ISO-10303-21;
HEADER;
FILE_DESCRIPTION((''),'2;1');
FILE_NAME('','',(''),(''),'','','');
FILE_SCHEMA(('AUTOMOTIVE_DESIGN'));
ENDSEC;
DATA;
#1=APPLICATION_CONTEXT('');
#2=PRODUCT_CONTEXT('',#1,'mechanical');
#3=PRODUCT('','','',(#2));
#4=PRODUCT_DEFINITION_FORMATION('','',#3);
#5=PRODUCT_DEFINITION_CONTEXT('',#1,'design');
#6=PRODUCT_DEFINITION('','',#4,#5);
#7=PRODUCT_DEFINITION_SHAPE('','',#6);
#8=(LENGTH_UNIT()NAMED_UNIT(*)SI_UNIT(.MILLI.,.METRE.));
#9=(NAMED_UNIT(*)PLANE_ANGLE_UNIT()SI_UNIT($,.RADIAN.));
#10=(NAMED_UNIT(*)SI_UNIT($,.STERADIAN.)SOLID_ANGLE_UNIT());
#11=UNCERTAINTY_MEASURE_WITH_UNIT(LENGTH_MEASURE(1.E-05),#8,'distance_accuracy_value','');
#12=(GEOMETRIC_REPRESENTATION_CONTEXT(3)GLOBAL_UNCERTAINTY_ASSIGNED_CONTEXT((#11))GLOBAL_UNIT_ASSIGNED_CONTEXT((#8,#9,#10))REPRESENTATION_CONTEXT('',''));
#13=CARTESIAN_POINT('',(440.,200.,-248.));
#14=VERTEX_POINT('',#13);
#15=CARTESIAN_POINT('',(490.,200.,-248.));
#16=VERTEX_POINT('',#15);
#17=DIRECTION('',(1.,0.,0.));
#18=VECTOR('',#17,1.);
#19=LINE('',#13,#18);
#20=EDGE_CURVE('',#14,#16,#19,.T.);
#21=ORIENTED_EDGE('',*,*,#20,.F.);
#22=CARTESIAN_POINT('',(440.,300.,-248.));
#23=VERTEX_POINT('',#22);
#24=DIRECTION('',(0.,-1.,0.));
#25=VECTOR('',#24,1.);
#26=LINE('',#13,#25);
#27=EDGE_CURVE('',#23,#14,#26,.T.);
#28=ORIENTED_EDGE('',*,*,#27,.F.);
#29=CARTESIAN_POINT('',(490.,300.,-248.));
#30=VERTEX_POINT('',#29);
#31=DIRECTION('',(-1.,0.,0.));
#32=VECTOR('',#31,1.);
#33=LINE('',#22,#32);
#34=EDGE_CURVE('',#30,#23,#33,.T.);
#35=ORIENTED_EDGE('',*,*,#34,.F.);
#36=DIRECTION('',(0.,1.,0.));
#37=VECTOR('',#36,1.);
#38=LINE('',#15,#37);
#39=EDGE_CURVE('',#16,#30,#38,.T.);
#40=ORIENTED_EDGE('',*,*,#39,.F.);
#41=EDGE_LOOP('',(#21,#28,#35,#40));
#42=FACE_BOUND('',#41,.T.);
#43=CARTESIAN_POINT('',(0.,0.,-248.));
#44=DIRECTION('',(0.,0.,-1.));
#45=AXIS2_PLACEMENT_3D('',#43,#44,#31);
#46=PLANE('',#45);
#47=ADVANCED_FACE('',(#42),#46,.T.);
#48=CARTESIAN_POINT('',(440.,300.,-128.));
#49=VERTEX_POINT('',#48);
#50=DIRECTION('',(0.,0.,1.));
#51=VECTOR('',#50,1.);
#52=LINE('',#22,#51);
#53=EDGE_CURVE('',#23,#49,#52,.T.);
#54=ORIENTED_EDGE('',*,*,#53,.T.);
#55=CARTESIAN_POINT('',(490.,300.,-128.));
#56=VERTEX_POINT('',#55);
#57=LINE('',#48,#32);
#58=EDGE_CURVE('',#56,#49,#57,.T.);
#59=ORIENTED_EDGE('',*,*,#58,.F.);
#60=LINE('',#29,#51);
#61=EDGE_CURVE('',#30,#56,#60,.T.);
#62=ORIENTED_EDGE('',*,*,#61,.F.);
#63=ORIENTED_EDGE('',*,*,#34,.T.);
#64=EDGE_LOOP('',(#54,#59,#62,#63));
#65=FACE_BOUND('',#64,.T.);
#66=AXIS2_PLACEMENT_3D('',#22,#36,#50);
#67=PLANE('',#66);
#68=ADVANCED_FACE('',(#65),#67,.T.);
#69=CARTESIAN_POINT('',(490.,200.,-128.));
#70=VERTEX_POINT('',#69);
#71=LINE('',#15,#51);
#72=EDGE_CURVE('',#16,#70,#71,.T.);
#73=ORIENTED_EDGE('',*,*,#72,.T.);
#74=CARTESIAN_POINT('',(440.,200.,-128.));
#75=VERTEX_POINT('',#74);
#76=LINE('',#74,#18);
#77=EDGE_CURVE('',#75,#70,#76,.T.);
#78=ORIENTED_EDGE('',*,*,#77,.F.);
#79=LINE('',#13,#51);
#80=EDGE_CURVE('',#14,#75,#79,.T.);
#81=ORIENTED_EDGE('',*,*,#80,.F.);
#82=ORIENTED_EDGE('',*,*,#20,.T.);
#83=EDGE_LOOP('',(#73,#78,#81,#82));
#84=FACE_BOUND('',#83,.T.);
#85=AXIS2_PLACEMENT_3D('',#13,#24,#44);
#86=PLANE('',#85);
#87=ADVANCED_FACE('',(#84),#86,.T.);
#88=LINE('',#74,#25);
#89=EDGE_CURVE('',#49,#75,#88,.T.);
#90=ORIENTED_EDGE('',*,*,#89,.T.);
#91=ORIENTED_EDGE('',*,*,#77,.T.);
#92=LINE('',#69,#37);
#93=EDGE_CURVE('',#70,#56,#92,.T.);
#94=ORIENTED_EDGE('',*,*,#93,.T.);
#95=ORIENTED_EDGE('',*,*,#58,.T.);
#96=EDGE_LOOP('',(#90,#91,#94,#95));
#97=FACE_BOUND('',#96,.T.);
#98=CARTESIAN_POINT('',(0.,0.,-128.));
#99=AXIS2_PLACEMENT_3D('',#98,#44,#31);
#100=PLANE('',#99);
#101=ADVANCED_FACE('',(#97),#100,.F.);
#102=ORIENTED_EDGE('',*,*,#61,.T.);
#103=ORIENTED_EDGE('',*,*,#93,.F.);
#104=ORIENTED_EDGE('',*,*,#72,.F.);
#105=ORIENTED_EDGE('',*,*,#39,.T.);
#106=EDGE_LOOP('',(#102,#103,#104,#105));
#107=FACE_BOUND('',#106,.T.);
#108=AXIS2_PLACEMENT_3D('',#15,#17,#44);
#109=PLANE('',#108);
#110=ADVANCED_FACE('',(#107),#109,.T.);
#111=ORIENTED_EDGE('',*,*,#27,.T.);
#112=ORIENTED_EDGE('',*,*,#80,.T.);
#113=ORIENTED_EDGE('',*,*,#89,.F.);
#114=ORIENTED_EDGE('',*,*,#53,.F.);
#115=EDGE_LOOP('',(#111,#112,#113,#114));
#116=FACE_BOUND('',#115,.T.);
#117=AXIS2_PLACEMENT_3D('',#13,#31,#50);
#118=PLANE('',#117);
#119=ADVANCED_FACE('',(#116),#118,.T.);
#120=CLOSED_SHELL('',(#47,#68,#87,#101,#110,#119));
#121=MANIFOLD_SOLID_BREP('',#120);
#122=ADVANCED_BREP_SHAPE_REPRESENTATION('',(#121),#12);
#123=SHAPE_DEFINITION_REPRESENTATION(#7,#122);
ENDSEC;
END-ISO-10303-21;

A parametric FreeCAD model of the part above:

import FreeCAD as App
import Part
import Sketcher
from FreeCAD import Vector
Q = App.Units.Quantity

doc = App.newDocument("Part")
body = doc.addObject("PartDesign::Body", "Body")

sketch1 = doc.addObject("Sketcher::SketchObject", "Sketch")
body.addObject(sketch1)
sketch1.AttachmentSupport = (doc.XY_Plane, [""])
sketch1.MapMode = "FlatFace"
sketch1.AttachmentOffset = App.Placement(Vector(0, 0, -128), App.Rotation())
sketch1.addGeometry(Part.LineSegment(Vector(440, 300, 0), Vector(440, 200, 0)), False)
sketch1.addGeometry(Part.LineSegment(Vector(440, 200, 0), Vector(490, 200, 0)), False)
sketch1.addGeometry(Part.LineSegment(Vector(490, 200, 0), Vector(490, 300, 0)), False)
sketch1.addGeometry(Part.LineSegment(Vector(490, 300, 0), Vector(440, 300, 0)), False)
sketch1.addConstraint(Sketcher.Constraint("Coincident", 0, 2, 1, 1))
sketch1.addConstraint(Sketcher.Constraint("Coincident", 1, 2, 2, 1))
sketch1.addConstraint(Sketcher.Constraint("Coincident", 2, 2, 3, 1))
sketch1.addConstraint(Sketcher.Constraint("Coincident", 3, 2, 0, 1))
sketch1.addConstraint(Sketcher.Constraint("Vertical", 0))
sketch1.addConstraint(Sketcher.Constraint("Horizontal", 1))
sketch1.addConstraint(Sketcher.Constraint("Vertical", 2))
sketch1.addConstraint(Sketcher.Constraint("Horizontal", 3))
sketch1.addConstraint(Sketcher.Constraint("DistanceX", 1, 1, 1, 2, Q("50 mm")))
sketch1.addConstraint(Sketcher.Constraint("DistanceY", 0, 2, 0, 1, Q("100 mm")))
sketch1.addConstraint(Sketcher.Constraint("DistanceX", -1, 1, 0, 2, Q("440 mm")))
sketch1.addConstraint(Sketcher.Constraint("DistanceY", -1, 1, 0, 2, Q("200 mm")))
pad1 = doc.addObject("PartDesign::Pad", "Pad")
body.addObject(pad1)
pad1.Profile = sketch1
pad1.Length = 120
pad1.Reversed = True

doc.recompute()
